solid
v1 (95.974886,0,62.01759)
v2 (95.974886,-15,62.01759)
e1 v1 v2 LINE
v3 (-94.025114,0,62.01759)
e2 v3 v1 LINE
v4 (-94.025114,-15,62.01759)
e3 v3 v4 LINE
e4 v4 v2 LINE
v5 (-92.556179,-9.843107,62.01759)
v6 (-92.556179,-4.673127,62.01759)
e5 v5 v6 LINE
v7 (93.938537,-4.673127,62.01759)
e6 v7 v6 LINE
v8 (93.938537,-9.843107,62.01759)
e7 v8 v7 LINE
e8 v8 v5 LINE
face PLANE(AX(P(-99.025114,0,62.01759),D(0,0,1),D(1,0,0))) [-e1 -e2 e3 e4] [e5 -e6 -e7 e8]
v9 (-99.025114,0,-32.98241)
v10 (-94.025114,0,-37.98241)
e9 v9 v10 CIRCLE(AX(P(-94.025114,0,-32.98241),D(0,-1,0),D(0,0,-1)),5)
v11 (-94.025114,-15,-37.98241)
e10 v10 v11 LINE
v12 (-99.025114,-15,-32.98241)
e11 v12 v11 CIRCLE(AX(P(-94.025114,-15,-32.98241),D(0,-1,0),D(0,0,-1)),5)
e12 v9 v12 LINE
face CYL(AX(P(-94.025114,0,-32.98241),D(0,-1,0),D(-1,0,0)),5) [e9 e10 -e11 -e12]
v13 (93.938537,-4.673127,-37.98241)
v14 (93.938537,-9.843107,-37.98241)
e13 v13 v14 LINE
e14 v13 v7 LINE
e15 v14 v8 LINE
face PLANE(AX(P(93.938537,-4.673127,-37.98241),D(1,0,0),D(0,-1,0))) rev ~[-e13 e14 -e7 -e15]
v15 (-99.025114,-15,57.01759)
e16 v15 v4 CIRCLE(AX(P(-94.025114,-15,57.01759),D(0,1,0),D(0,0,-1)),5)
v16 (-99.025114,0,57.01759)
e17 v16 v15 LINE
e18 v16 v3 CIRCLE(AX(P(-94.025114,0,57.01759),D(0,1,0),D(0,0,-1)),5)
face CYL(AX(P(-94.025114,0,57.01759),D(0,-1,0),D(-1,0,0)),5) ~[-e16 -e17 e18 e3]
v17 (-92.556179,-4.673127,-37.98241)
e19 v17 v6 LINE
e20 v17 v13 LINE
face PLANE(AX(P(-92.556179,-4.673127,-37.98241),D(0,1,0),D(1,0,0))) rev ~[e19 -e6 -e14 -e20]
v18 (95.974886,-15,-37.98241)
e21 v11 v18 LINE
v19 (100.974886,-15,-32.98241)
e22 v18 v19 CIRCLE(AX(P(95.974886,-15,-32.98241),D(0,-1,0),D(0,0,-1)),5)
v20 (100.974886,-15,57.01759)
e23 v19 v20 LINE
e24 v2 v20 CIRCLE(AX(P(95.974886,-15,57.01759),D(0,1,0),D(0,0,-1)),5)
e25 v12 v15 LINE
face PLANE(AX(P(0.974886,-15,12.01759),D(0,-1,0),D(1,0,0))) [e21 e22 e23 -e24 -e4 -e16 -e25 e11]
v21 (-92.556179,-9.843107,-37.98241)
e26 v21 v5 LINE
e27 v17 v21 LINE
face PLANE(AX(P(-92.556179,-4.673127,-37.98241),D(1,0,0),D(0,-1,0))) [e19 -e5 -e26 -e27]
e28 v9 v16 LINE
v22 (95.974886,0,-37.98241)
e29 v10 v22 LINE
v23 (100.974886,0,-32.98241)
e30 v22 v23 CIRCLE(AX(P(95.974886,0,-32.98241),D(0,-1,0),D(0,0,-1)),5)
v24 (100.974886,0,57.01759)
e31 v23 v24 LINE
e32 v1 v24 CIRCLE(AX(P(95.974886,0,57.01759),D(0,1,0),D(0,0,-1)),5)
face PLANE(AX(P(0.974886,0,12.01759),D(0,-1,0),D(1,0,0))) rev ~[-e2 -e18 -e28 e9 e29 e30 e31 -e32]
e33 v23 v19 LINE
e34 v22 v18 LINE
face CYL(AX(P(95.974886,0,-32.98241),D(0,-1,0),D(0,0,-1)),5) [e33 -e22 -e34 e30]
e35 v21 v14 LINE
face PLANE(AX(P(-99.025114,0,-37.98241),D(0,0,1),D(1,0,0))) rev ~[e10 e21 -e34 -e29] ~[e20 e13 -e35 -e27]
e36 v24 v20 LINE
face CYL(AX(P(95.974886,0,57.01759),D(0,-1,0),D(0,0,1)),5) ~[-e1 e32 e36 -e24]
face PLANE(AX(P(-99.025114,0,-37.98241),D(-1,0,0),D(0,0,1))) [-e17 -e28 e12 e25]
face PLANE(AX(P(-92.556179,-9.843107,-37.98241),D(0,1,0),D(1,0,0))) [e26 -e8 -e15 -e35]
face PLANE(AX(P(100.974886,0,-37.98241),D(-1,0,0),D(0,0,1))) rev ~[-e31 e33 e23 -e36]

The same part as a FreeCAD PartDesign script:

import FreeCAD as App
import Part
import Sketcher
from FreeCAD import Vector


def edges_at(feature, points):
    """Names of the edges that pass closest to the given points."""
    edges = feature.Shape.Edges
    near = lambda p: min(range(len(edges)), key=lambda i: edges[i].distToShape(Part.Vertex(*p))[0])
    return sorted({f"Edge{near(p) + 1}" for p in points})


def add_polygon(sketch, points):
    """Adds a closed chain of lines whose ends are joined by coincident constraints."""
    first, n = sketch.GeometryCount, len(points)
    for a, b in zip(points, points[1:] + points[:1]):
        sketch.addGeometry(Part.LineSegment(App.Vector(*a, 0), App.Vector(*b, 0)), False)
    for i in range(n):
        sketch.addConstraint(Sketcher.Constraint("Coincident", first + i, 2, first + (i + 1) % n, 1))

doc = App.newDocument("Part")
body = doc.addObject("PartDesign::Body", "Body")

sketch1 = doc.addObject("Sketcher::SketchObject", "Sketch")
body.addObject(sketch1)
sketch1.AttachmentSupport = (doc.XZ_Plane, [""])
sketch1.MapMode = "FlatFace"
add_polygon(sketch1, [(-99.025114, 62.01759), (-99.025114, -37.98241), (100.974886, -37.98241), (100.974886, 62.01759)])
sketch1.addConstraint([
    Sketcher.Constraint("Vertical", 0),
    Sketcher.Constraint("Horizontal", 1),
    Sketcher.Constraint("Vertical", 2),
    Sketcher.Constraint("Horizontal", 3),
    Sketcher.Constraint("DistanceX", 1, 1, 1, 2, 200.0),
    Sketcher.Constraint("DistanceY", 0, 2, 0, 1, 100.0),
    Sketcher.Constraint("DistanceY", 0, 2, -1, 1, 37.98241),
    Sketcher.Constraint("DistanceX", 0, 2, -1, 1, 99.025114),
])
pad1 = doc.addObject("PartDesign::Pad", "Pad")
body.addObject(pad1)
pad1.Profile = sketch1
pad1.Length = 15

sketch2 = doc.addObject("Sketcher::SketchObject", "Sketch001")
body.addObject(sketch2)
sketch2.AttachmentSupport = (doc.XY_Plane, [""])
sketch2.MapMode = "FlatFace"
sketch2.AttachmentOffset = App.Placement(Vector(0, 0, -37.98241), App.Rotation())
add_polygon(sketch2, [(-92.556179, -9.843107), (-92.556179, -4.673127), (93.938537, -4.673127), (93.938537, -9.843107)])
sketch2.addConstraint([
    Sketcher.Constraint("Vertical", 0),
    Sketcher.Constraint("Horizontal", 1),
    Sketcher.Constraint("Vertical", 2),
    Sketcher.Constraint("Horizontal", 3),
    Sketcher.Constraint("DistanceY", 0, 1, 0, 2, 5.16998),
    Sketcher.Constraint("DistanceX", 1, 1, 1, 2, 186.494716),
    Sketcher.Constraint("DistanceX", 0, 2, -1, 1, 92.556179),
    Sketcher.Constraint("DistanceY", 0, 2, -1, 1, 4.673127),
])
pocket1 = doc.addObject("PartDesign::Pocket", "Pocket")
body.addObject(pocket1)
pocket1.Profile = sketch2
pocket1.Type = "ThroughAll"
pocket1.Midplane = True
doc.recompute()

fillet = doc.addObject("PartDesign::Fillet", "Fillet")
body.addObject(fillet)
fillet.Base = (pocket1, edges_at(pocket1, [
    (-99.025, -7.5, 62.018),
    (100.975, -7.5, 62.018),
    (100.975, -7.5, -37.982),
    (-99.025, -7.5, -37.982),
]))
fillet.Radius = 5

doc.recompute()
